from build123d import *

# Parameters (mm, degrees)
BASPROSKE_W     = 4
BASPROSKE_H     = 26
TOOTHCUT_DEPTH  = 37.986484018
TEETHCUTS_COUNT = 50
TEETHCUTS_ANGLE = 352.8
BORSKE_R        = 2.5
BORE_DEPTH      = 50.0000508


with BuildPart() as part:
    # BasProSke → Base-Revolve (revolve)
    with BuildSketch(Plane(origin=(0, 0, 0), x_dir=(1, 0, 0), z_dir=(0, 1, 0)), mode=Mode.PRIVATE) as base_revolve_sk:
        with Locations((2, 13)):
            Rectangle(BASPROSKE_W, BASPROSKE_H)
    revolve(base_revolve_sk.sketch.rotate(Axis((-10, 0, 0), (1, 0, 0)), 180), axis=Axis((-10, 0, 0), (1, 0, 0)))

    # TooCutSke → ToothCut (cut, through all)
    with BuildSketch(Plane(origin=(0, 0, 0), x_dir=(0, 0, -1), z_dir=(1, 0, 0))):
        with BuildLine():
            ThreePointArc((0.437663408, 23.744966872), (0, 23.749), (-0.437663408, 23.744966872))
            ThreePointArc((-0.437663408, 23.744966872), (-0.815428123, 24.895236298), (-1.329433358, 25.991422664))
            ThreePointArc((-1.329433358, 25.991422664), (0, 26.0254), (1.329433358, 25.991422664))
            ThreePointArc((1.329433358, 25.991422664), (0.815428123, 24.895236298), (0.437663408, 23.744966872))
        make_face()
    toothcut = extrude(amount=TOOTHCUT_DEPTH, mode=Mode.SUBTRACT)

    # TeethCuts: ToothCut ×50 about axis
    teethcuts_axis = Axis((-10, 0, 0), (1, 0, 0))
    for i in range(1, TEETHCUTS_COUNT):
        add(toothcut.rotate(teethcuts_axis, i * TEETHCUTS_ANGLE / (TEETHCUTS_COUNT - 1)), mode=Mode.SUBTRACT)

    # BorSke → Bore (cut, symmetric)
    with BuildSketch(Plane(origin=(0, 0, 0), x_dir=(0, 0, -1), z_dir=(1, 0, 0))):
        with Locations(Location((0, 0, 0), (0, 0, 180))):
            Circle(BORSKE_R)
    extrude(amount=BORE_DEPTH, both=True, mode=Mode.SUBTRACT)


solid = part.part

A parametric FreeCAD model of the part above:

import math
import FreeCAD as App
import Part
import Sketcher
Q = App.Units.Quantity

doc = App.newDocument("Part")
body = doc.addObject("PartDesign::Body", "Body")

# Sketch on XZ plane
sketch1 = doc.addObject("Sketcher::SketchObject", "Sketch")
body.addObject(sketch1)
sketch1.AttachmentSupport = (doc.XZ_Plane, [""])
sketch1.MapMode = "FlatFace"
sketch1.addGeometry([
    Part.LineSegment(App.Vector(0, -26, 0), App.Vector(0, 0, 0)),
    Part.LineSegment(App.Vector(0, 0, 0), App.Vector(4, 0, 0)),
    Part.LineSegment(App.Vector(4, 0, 0), App.Vector(4, -26, 0)),
    Part.LineSegment(App.Vector(4, -26, 0), App.Vector(0, -26, 0)),
], False)
sketch1.addConstraint([
    Sketcher.Constraint("Coincident", 0, 2, 1, 1),
    Sketcher.Constraint("Coincident", 1, 2, 2, 1),
    Sketcher.Constraint("Coincident", 2, 2, 3, 1),
    Sketcher.Constraint("Coincident", 3, 2, 0, 1),
    Sketcher.Constraint("Vertical", 0),
    Sketcher.Constraint("Horizontal", 1),
    Sketcher.Constraint("Vertical", 2),
    Sketcher.Constraint("Horizontal", 3),
    Sketcher.Constraint("Coincident", 0, 2, -1, 1),
    Sketcher.Constraint("DistanceX", 1, 1, 1, 2, Q("4 mm")),
    Sketcher.Constraint("DistanceY", 0, 1, 0, 2, Q("26 mm")),
])
revolution = doc.addObject("PartDesign::Revolution", "Revolution")
body.addObject(revolution)
revolution.Profile = sketch1
revolution.ReferenceAxis = (sketch1, ["H_Axis"])
revolution.Angle = 360

# Sketch on YZ plane
sketch2 = doc.addObject("Sketcher::SketchObject", "Sketch001")
body.addObject(sketch2)
sketch2.AttachmentSupport = (doc.YZ_Plane, [""])
sketch2.MapMode = "FlatFace"
sketch2.addGeometry([
    Part.ArcOfCircle(Part.Circle(App.Vector(0, 0, 0), App.Vector(0, 0, 1), 23.7), math.radians(-1.06), math.radians(1.06)),
    Part.ArcOfCircle(Part.Circle(App.Vector(21.2, -10.1, 0), App.Vector(0, 0, 1), 10), math.radians(61.41), math.radians(75.29)),
    Part.ArcOfCircle(Part.Circle(App.Vector(0, 0, 0), App.Vector(0, 0, 1), 26), math.radians(-2.93), math.radians(2.93)),
    Part.ArcOfCircle(Part.Circle(App.Vector(21.2, 10.1, 0), App.Vector(0, 0, 1), 10), math.radians(-75.29), math.radians(-61.41)),
], False)
sketch2.addConstraint([
    Sketcher.Constraint("Coincident", 0, 1, 1, 2),
    Sketcher.Constraint("Coincident", 1, 1, 2, 1),
    Sketcher.Constraint("Coincident", 2, 2, 3, 2),
    Sketcher.Constraint("Coincident", 3, 1, 0, 2),
    Sketcher.Constraint("Coincident", 0, 3, -1, 1),
    Sketcher.Constraint("Coincident", 2, 3, -1, 1),
    Sketcher.Constraint("Equal", 1, 3),
    Sketcher.Constraint("Symmetric", 1, 3, 3, 3, -1),
    Sketcher.Constraint("Radius", 1, Q("10 mm")),
    Sketcher.Constraint("Radius", 0, Q("23.749001 mm")),
    Sketcher.Constraint("Radius", 2, Q("26.0254 mm")),
    Sketcher.Constraint("DistanceX", -1, 1, 1, 3, Q("21.20564 mm")),
    Sketcher.Constraint("DistanceX", 0, 3, 0, 1, Q("23.744968 mm")),
])
pocket1 = doc.addObject("PartDesign::Pocket", "Pocket")
body.addObject(pocket1)
pocket1.Profile = sketch2
pocket1.Type = "ThroughAll"
pocket1.Reversed = True
doc.recompute()

polarpattern = doc.addObject("PartDesign::PolarPattern", "PolarPattern")
body.addObject(polarpattern)
polarpattern.Originals = [pocket1]
polarpattern.Axis = (doc.X_Axis, [""])
polarpattern.Angle = 360
polarpattern.Occurrences = 50
body.Tip = polarpattern

# Sketch on YZ plane
sketch3 = doc.addObject("Sketcher::SketchObject", "Sketch002")
body.addObject(sketch3)
sketch3.AttachmentSupport = (doc.YZ_Plane, [""])
sketch3.MapMode = "FlatFace"
sketch3.addGeometry(Part.Circle(App.Vector(0, 0, 0), App.Vector(0, 0, 1), 2.5), False)
sketch3.addConstraint([
    Sketcher.Constraint("Coincident", 0, 3, -1, 1),
    Sketcher.Constraint("Diameter", 0, Q("5 mm")),
])
pocket2 = doc.addObject("PartDesign::Pocket", "Pocket001")
body.addObject(pocket2)
pocket2.Profile = sketch3
pocket2.Length = 100.000102
pocket2.Midplane = True

doc.recompute()
